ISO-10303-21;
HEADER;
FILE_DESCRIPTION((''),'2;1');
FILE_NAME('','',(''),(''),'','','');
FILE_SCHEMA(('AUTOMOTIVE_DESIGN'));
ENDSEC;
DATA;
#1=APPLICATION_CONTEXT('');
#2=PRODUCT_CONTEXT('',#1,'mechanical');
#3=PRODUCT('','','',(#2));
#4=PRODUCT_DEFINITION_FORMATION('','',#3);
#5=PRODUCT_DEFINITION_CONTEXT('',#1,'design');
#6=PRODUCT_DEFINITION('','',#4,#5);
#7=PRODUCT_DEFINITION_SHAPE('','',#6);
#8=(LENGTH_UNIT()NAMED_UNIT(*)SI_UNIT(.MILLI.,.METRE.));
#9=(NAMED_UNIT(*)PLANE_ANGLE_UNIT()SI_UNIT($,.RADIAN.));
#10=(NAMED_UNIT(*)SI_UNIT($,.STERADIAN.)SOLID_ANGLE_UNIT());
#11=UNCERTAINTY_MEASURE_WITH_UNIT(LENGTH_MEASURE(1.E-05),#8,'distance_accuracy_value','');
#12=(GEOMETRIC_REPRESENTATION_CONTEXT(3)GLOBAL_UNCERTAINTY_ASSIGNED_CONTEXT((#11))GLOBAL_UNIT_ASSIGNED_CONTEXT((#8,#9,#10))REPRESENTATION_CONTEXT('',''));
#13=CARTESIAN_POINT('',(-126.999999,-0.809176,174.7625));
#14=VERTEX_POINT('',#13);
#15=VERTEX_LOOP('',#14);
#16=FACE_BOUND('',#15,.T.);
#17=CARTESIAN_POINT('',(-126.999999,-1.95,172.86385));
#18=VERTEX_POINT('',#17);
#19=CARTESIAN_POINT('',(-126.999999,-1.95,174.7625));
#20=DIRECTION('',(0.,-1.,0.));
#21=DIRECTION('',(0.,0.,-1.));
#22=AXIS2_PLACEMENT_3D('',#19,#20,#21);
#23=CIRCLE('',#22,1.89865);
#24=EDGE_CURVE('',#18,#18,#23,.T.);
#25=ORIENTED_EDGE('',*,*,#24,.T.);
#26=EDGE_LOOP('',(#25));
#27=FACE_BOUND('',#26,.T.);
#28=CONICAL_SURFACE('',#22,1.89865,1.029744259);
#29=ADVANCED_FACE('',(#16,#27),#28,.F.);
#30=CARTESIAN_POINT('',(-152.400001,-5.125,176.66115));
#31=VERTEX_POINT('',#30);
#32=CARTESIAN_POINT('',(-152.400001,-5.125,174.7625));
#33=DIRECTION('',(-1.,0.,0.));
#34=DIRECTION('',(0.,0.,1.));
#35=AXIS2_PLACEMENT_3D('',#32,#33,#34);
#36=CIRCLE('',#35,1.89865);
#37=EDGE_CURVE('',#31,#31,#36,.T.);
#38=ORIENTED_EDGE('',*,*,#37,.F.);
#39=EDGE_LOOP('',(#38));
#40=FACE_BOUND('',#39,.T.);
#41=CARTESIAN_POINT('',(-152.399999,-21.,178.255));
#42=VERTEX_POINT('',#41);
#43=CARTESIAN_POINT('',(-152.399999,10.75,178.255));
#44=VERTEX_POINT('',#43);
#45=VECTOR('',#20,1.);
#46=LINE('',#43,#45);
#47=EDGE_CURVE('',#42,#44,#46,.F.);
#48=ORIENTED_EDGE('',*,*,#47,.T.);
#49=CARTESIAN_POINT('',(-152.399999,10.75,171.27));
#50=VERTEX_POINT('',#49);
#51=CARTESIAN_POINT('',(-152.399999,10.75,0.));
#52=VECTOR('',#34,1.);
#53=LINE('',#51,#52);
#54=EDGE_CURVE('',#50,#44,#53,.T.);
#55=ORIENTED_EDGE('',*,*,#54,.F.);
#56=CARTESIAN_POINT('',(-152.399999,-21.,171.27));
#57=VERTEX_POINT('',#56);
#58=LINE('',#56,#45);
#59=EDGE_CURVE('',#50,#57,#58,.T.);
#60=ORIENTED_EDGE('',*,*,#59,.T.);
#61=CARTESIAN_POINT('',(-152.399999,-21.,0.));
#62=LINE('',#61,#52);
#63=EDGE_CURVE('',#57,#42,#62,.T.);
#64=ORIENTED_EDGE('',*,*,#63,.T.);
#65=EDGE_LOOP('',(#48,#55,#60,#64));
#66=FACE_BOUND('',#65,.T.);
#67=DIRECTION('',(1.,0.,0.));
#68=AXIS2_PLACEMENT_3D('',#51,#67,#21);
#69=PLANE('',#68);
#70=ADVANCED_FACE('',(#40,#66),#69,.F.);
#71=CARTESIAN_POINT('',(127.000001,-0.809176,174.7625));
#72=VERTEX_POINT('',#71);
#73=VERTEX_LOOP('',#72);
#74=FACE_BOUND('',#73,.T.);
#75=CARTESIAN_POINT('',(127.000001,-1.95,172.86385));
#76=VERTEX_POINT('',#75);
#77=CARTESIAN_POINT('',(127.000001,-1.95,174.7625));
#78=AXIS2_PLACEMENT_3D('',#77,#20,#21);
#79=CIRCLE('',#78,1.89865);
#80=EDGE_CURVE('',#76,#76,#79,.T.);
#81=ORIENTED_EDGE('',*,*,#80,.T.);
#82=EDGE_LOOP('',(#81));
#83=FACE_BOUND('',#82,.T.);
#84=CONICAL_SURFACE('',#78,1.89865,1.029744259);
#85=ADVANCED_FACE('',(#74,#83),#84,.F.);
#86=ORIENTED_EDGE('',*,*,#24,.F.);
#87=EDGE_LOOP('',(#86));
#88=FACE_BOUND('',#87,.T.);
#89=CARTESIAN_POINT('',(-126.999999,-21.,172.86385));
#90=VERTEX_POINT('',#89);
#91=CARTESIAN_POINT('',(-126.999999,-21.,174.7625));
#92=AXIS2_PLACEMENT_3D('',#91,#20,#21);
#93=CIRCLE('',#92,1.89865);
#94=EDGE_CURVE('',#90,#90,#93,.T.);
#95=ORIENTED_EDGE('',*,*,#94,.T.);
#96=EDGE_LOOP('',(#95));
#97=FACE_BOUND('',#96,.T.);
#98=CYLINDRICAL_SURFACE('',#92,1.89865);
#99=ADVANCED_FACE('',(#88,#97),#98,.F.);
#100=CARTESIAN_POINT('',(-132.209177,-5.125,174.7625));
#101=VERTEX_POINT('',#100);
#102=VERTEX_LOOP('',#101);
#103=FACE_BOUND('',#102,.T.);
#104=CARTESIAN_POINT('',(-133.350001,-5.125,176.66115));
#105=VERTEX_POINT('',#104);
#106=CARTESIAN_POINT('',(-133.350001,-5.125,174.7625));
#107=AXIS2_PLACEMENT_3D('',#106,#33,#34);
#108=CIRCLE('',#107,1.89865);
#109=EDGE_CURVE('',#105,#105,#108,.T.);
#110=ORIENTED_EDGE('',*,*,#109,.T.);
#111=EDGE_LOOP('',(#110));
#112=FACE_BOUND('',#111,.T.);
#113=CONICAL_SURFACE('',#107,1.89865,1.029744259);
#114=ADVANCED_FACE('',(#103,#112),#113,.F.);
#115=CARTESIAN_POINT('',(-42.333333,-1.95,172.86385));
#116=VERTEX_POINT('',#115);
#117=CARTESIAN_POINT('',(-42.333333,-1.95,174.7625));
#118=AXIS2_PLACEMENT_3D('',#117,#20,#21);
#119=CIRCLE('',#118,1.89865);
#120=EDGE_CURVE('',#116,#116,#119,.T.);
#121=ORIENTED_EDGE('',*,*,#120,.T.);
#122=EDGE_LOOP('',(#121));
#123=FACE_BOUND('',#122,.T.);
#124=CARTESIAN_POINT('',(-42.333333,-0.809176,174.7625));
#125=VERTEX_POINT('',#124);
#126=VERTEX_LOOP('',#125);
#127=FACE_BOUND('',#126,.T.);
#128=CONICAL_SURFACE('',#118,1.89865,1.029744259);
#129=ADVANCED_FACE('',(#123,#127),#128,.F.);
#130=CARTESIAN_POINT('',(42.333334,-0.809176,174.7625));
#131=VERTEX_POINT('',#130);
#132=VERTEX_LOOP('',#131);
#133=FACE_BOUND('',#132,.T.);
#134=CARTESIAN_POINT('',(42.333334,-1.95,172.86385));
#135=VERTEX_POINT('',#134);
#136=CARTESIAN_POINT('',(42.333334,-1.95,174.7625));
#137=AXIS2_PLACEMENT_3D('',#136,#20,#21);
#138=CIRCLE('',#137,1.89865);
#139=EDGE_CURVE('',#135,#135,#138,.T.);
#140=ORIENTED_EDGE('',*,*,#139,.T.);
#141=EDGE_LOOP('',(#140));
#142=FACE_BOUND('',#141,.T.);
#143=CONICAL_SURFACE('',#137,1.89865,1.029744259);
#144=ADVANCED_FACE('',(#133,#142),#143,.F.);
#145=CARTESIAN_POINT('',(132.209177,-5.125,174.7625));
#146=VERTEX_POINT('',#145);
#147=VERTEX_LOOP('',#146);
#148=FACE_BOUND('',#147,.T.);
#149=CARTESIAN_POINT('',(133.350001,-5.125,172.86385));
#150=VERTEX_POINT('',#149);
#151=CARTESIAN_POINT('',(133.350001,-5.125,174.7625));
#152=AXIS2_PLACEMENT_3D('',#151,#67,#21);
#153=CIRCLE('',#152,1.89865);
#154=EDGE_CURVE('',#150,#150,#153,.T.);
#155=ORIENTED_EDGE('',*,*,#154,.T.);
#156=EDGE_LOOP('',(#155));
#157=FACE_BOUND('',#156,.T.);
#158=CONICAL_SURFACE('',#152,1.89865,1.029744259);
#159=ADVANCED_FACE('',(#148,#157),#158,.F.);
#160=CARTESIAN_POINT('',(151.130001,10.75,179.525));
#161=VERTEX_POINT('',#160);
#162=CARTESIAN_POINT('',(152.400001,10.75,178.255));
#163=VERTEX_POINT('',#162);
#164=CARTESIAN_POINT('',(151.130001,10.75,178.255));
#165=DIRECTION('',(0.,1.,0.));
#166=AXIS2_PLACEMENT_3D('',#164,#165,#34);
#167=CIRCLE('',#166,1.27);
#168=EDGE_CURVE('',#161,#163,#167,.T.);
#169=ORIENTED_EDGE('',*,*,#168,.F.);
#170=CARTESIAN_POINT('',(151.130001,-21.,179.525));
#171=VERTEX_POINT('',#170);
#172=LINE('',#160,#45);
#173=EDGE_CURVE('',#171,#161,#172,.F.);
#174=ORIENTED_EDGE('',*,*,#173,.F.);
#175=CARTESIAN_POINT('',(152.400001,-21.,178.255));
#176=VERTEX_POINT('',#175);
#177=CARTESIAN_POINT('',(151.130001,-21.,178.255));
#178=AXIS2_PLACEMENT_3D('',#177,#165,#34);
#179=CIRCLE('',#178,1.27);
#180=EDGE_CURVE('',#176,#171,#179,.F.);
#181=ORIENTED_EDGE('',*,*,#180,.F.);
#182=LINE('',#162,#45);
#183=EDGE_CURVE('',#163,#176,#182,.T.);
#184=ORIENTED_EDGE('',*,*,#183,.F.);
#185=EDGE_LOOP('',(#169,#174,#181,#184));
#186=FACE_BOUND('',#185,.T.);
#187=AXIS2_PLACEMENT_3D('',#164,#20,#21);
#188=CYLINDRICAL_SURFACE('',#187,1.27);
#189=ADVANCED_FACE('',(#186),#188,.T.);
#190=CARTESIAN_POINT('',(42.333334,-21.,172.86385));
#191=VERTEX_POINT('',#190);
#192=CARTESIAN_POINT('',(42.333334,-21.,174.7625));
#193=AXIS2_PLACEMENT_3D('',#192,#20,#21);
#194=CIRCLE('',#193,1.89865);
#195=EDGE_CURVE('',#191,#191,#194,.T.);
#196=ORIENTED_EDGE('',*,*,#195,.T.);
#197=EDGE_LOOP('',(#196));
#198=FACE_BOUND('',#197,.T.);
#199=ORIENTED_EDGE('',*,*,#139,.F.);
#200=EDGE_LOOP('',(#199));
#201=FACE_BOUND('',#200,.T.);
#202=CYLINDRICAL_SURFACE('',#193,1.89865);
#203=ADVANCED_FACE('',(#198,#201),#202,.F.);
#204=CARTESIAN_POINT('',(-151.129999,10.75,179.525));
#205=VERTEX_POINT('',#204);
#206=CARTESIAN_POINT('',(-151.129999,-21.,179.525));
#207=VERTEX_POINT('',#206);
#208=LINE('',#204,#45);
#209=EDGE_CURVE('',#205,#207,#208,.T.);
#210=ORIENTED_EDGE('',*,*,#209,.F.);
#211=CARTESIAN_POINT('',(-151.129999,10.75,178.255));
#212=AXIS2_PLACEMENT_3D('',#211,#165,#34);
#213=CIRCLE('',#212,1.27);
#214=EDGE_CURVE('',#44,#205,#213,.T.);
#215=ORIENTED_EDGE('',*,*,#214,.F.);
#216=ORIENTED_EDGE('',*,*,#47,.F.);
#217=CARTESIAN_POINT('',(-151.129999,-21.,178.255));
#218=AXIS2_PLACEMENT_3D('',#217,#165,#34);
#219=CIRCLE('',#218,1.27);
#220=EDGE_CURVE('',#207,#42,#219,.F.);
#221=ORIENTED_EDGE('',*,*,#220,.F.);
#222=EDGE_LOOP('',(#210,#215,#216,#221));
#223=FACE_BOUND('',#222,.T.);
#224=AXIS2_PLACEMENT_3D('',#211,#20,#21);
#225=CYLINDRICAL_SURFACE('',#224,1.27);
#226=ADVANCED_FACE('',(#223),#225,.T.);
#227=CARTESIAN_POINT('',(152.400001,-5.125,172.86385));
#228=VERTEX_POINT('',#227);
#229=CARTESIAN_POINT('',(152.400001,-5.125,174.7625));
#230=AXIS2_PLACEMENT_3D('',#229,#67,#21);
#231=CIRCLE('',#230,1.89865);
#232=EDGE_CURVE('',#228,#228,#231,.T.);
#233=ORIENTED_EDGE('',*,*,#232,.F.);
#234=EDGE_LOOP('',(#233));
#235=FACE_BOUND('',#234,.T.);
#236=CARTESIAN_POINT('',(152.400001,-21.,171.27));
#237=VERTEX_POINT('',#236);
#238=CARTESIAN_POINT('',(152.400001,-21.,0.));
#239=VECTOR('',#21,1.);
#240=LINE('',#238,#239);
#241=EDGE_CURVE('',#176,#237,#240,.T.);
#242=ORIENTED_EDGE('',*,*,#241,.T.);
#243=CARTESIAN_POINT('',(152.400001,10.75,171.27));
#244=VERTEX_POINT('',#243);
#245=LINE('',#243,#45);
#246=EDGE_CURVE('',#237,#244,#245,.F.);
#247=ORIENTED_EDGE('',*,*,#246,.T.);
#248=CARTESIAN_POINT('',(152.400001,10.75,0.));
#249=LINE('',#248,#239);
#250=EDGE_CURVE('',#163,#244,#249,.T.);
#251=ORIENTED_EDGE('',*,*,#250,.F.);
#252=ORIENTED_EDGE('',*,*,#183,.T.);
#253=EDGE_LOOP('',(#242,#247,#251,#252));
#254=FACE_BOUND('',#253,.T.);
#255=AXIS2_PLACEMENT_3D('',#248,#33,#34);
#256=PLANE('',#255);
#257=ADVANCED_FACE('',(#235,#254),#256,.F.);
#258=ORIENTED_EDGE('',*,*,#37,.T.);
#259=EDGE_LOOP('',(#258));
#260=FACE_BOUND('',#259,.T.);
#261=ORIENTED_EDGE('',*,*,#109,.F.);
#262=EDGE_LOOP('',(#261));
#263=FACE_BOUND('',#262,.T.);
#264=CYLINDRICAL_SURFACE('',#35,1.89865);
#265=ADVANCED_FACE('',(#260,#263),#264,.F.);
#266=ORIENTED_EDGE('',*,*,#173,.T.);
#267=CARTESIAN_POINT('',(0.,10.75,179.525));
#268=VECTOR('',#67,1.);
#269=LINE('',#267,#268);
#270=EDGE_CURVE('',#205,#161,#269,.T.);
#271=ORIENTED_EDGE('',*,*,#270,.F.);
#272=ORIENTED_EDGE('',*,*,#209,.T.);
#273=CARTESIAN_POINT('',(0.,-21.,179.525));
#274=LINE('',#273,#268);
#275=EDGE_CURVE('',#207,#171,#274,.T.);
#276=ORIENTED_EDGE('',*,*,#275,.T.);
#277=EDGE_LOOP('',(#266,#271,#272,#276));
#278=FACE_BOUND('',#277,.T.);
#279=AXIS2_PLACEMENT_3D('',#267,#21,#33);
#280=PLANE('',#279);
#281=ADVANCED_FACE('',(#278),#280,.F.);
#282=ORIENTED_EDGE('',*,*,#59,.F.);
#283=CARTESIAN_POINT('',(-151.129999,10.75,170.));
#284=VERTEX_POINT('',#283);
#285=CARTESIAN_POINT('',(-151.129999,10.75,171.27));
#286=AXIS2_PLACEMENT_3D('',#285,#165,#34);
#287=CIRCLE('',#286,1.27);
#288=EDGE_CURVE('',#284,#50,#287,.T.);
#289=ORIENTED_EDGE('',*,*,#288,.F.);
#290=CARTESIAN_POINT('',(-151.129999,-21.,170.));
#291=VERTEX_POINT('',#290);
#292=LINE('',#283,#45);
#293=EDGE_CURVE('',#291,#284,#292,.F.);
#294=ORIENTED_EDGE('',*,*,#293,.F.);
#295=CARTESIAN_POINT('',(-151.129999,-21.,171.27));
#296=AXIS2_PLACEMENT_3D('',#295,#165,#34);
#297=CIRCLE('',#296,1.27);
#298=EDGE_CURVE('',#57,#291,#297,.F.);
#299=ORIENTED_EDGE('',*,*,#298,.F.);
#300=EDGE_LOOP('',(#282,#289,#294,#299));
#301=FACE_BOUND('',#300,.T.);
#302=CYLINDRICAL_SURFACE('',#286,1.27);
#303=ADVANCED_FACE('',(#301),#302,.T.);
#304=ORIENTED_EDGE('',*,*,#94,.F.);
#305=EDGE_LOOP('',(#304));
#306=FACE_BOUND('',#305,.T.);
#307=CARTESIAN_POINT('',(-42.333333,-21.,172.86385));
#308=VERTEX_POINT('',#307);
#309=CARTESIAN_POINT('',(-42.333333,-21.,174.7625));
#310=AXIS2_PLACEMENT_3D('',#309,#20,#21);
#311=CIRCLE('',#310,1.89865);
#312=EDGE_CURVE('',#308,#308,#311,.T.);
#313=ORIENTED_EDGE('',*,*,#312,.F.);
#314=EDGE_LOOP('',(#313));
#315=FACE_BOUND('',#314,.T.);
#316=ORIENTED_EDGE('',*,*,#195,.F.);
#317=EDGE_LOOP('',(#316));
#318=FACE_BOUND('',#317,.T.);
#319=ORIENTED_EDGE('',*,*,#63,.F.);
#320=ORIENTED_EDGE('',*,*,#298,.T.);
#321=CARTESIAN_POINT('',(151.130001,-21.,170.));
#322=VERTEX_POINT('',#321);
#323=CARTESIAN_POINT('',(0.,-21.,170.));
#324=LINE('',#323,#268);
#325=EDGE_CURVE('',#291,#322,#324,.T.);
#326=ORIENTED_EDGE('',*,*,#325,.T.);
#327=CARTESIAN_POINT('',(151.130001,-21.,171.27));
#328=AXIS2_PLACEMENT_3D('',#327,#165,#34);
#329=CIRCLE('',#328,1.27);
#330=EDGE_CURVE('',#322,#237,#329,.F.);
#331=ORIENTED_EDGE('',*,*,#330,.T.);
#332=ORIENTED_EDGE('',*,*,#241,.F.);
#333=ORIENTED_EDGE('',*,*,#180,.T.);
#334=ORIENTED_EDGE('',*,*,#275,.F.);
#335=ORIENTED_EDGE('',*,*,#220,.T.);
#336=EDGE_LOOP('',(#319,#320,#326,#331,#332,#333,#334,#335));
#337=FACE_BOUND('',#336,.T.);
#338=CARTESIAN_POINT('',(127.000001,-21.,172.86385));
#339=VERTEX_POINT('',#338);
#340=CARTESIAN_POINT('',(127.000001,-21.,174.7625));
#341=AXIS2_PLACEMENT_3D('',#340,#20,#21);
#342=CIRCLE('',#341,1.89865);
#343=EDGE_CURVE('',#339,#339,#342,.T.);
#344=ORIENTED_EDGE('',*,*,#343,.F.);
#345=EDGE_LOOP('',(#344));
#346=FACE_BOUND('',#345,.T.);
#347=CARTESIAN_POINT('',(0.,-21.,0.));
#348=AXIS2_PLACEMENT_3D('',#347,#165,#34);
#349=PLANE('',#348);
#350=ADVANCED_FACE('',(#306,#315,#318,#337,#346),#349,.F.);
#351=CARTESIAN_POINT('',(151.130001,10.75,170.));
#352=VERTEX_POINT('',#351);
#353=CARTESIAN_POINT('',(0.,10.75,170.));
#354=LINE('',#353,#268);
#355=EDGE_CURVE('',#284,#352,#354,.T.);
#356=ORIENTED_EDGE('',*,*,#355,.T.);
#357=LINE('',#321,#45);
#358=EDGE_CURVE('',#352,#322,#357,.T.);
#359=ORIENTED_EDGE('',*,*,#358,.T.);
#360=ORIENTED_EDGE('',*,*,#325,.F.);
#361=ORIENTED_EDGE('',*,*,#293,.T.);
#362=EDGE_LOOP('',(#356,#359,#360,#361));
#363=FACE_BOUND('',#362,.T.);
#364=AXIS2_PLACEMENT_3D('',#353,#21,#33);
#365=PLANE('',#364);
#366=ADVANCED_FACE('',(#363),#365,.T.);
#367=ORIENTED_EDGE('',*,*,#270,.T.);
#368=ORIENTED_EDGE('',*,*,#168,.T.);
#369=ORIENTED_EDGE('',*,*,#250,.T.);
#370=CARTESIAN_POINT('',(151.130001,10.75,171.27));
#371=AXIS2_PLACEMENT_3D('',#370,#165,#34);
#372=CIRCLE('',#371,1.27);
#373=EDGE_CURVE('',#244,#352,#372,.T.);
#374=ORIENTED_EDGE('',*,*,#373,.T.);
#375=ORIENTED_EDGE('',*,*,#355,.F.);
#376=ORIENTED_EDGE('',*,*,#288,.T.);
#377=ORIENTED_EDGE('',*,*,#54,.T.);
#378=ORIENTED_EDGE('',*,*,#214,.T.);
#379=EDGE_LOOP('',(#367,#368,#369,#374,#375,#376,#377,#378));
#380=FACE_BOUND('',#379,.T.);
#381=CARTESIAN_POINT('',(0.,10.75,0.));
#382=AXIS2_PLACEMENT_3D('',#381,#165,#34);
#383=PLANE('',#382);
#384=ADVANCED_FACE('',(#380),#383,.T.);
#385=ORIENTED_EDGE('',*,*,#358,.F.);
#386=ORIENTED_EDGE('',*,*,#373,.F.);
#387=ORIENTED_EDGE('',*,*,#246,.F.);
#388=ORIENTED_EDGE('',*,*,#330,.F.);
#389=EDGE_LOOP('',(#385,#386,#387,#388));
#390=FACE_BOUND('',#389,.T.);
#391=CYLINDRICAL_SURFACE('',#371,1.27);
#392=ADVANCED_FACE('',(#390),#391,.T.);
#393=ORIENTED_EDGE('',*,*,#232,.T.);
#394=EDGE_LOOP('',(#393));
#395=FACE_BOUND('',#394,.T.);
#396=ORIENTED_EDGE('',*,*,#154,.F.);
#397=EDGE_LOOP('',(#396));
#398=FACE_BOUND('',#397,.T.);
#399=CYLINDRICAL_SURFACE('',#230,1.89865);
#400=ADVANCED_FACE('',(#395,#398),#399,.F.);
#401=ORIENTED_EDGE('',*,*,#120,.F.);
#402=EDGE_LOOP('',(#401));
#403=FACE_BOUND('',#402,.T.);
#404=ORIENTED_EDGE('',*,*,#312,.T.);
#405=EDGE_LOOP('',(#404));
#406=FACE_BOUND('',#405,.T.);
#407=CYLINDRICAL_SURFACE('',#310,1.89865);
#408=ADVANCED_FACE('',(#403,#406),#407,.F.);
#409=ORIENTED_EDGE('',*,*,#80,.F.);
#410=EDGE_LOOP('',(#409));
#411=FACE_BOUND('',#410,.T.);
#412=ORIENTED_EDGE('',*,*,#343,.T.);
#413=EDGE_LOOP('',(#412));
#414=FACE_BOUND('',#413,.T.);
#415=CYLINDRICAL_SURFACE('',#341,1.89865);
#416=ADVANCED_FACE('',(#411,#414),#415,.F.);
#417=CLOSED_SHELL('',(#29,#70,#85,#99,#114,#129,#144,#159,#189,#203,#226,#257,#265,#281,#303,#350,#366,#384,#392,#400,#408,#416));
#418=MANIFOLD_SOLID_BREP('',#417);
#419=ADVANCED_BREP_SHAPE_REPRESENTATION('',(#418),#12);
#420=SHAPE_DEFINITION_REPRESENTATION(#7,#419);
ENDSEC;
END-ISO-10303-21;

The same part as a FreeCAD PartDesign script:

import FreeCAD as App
import Part
import Sketcher

V = App.Vector
Q = App.Units.Quantity


def edges_at(feature, points):
    """Names of the edges that pass closest to the given points."""
    edges = feature.Shape.Edges
    near = lambda p: min(range(len(edges)), key=lambda i: edges[i].distToShape(Part.Vertex(*p))[0])
    return sorted({f"Edge{near(p) + 1}" for p in points})


def add_polygon(sketch, points):
    """Adds a closed chain of lines whose ends are joined by coincident constraints."""
    first, n = sketch.GeometryCount, len(points)
    for a, b in zip(points, points[1:] + points[:1]):
        sketch.addGeometry(Part.LineSegment(App.Vector(*a, 0), App.Vector(*b, 0)), False)
    for i in range(n):
        sketch.addConstraint(Sketcher.Constraint("Coincident", first + i, 2, first + (i + 1) % n, 1))

doc = App.newDocument("Part")
params = doc.addObject("Spreadsheet::Sheet", "Params")
for row, (alias, value) in enumerate([
    ("sketch1_width", "12 in"),
    ("sketch1_height", "0.375 in"),
    ("pad1_length", "1.25 in"),
    ("hole_diameter", "0.1495 in"),
    ("hole_depth", "0.75 in"),
    ("sketch3_width", "0.75 in"),
    ("groove_angle", "360 deg"),
    ("fillet_radius", "0.05 in"),
], start=1):
    params.set(f"A{row}", alias)
    params.set(f"B{row}", "=" + value)
    params.setAlias(f"B{row}", alias)

body = doc.addObject("PartDesign::Body", "Body")

# Sketch on XZ plane
sketch1 = body.newObject("Sketcher::SketchObject", "Sketch")
sketch1.AttachmentSupport = (doc.getObject("XZ_Plane"), [""])
sketch1.MapMode = "FlatFace"
sketch1.AttachmentOffset = App.Placement(V(0, 0, 21), App.Rotation())
add_polygon(sketch1, [(-152, 170), (-152, 180), (152, 180), (152, 170)])  # lines 0-3
sketch1.addConstraint([
    Sketcher.Constraint("Vertical", 0),
    Sketcher.Constraint("Horizontal", 1),
    Sketcher.Constraint("Vertical", 2),
    Sketcher.Constraint("Horizontal", 3),
    Sketcher.Constraint("DistanceX", 1, 1, 1, 2, Q("12 in")),
    Sketcher.Constraint("DistanceX", 0, 2, -1, 1, Q("6 in")),
    Sketcher.Constraint("DistanceY", 0, 1, 0, 2, Q("0.375 in")),
    Sketcher.Constraint("DistanceY", -1, 1, 0, 2, 179.525),
])
sketch1.setExpression("Constraints[8]", "Params.sketch1_width")
sketch1.setExpression("Constraints[10]", "Params.sketch1_height")
pad1 = body.newObject("PartDesign::Pad", "Pad")
pad1.Profile = sketch1
pad1.setExpression("Length", "Params.pad1_length")
pad1.Reversed = True

# Sketch on XZ plane
sketch2 = body.newObject("Sketcher::SketchObject", "Sketch001")
sketch2.AttachmentSupport = (doc.getObject("XZ_Plane"), [""])
sketch2.MapMode = "FlatFace"
sketch2.AttachmentOffset = App.Placement(V(0, 0, 21), App.Rotation())
sketch2.addGeometry([
    Part.Circle(V(127, 174.8, 0), V(0, 0, 1), 1.9),
    Part.Circle(V(42.3, 174.8, 0), V(0, 0, 1), 1.9),
    Part.Circle(V(-127, 174.8, 0), V(0, 0, 1), 1.9),
    Part.Circle(V(-42.3, 174.8, 0), V(0, 0, 1), 1.9),
], False)
sketch2.addConstraint([
    Sketcher.Constraint("Equal", 0, 1),
    Sketcher.Constraint("Equal", 1, 2),
    Sketcher.Constraint("Equal", 2, 3),
    Sketcher.Constraint("Symmetric", 0, 3, 2, 3, -2),
    Sketcher.Constraint("Symmetric", 1, 3, 3, 3, -2),
    Sketcher.Constraint("Horizontal", 0, 3, 1, 3),
    Sketcher.Constraint("DistanceX", -1, 1, 0, 3, Q("5 in")),
    Sketcher.Constraint("Diameter", 0, Q("0.1495 in")),
    Sketcher.Constraint("DistanceY", -1, 1, 0, 3, 174.7625),
    Sketcher.Constraint("DistanceX", -1, 1, 1, 3, 42.333334),
])
doc.recompute()
hole = body.newObject("PartDesign::Hole", "Hole")
hole.Profile = sketch2
hole.ThreadType = "None"
hole.setExpression("Diameter", "Params.hole_diameter")
hole.DepthType = "Dimension"
hole.setExpression("Depth", "Params.hole_depth")
hole.DrillPoint = "Angled"
hole.DrillPointAngle = 118

# Sketch on XZ plane
sketch3 = body.newObject("Sketcher::SketchObject", "Sketch002")
sketch3.AttachmentSupport = (doc.getObject("XZ_Plane"), [""])
sketch3.MapMode = "FlatFace"
sketch3.AttachmentOffset = App.Placement(V(0, 0, 5.125), App.Rotation())
add_polygon(sketch3, [(132.2, 174.8), (152.4, 174.8), (152.4, 172.9), (133.4, 172.9)])  # lines 0-3
sketch3.addGeometry(Part.LineSegment(V(152.4, 174.8, 0), V(132.2, 174.8, 0)), True)  # axis
sketch3.addConstraint([
    Sketcher.Constraint("Horizontal", 0),
    Sketcher.Constraint("Vertical", 1),
    Sketcher.Constraint("Horizontal", 2),
    Sketcher.Constraint("Horizontal", 4),
    Sketcher.Constraint("Coincident", 4, 1, 0, 2),
    Sketcher.Constraint("Equal", 0, 4),
    Sketcher.Constraint("DistanceX", -1, 1, 0, 2, Q("6 in")),
    Sketcher.Constraint("Angle", 3, Q("121 deg")),
    Sketcher.Constraint("DistanceX", 2, 2, 2, 1, Q("0.75 in")),
    Sketcher.Constraint("DistanceY", 1, 2, 1, 1, 1.89865),
    Sketcher.Constraint("DistanceY", -1, 1, 0, 2, 174.7625),
])
sketch3.setExpression("Constraints[12]", "Params.sketch3_width")
groove = body.newObject("PartDesign::Groove", "Groove")
groove.Profile = sketch3
groove.ReferenceAxis = (sketch3, ["Axis0"])
groove.setExpression("Angle", "Params.groove_angle")
doc.recompute()

mirrored = body.newObject("PartDesign::Mirrored", "Mirrored")
mirrored.Originals = [groove]
mirrored.MirrorPlane = (doc.getObject("YZ_Plane"), [""])
body.Tip = mirrored
doc.recompute()

fillet = body.newObject("PartDesign::Fillet", "Fillet")
fillet.Base = (mirrored, edges_at(mirrored, [
    (152.4, -5.125, 170),
    (152.4, -5.125, 179.525),
    (-152.4, -5.125, 179.525),
    (-152.4, -5.125, 170),
]))
fillet.setExpression("Radius", "Params.fillet_radius")

doc.recompute()
